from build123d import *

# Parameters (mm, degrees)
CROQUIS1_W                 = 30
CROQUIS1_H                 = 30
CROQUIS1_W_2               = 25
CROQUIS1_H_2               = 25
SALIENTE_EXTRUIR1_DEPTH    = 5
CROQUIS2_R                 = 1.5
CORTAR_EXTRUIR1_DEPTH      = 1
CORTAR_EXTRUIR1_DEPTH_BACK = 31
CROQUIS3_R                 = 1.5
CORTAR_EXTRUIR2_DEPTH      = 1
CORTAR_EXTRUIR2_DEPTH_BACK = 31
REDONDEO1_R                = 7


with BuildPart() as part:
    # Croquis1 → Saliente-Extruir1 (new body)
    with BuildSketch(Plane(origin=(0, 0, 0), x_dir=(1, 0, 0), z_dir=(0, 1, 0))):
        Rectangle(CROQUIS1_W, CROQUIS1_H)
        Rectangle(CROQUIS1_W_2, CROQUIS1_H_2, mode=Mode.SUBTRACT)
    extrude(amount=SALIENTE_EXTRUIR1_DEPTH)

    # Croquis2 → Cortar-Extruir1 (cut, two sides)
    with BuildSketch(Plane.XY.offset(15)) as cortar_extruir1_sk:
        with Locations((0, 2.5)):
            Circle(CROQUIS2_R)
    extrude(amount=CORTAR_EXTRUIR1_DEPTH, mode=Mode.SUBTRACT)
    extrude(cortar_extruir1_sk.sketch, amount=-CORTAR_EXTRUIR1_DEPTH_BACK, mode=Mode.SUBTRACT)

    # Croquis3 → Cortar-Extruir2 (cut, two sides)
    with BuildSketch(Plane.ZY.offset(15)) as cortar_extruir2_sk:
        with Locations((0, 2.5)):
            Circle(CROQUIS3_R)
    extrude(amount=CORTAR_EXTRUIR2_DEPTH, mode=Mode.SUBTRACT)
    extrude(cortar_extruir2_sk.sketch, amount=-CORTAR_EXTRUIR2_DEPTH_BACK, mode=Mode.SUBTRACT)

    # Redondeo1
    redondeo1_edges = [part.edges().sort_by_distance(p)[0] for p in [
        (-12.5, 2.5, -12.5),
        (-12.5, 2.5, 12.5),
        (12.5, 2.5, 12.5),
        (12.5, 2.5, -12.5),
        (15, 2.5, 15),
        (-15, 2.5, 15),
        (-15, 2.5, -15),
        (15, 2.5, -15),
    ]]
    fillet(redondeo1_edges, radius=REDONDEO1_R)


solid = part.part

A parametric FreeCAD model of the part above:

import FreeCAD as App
import Part
import Sketcher

V = App.Vector
Q = App.Units.Quantity


def edges_at(feature, points):
    """Names of the edges that pass closest to the given points."""
    edges = feature.Shape.Edges
    near = lambda p: min(range(len(edges)), key=lambda i: edges[i].distToShape(Part.Vertex(*p))[0])
    return sorted({f"Edge{near(p) + 1}" for p in points})

doc = App.newDocument("Part")
body = doc.addObject("PartDesign::Body", "Body")

# Sketch on XZ plane
sketch1 = doc.addObject("Sketcher::SketchObject", "Sketch")
body.addObject(sketch1)
sketch1.AttachmentSupport = (doc.XZ_Plane, [""])
sketch1.MapMode = "FlatFace"
sketch1.addGeometry([
    Part.LineSegment(V(-15, -15, 0), V(-15, 15, 0)),  # 0
    Part.LineSegment(V(-15, 15, 0), V(15, 15, 0)),  # 1
    Part.LineSegment(V(15, 15, 0), V(15, -15, 0)),  # 2
    Part.LineSegment(V(15, -15, 0), V(-15, -15, 0)),  # 3
    Part.LineSegment(V(12, 12, 0), V(-12, 12, 0)),  # 4
    Part.LineSegment(V(-12, 12, 0), V(-12, -12, 0)),  # 5
    Part.LineSegment(V(-12, -12, 0), V(12, -12, 0)),  # 6
    Part.LineSegment(V(12, -12, 0), V(12, 12, 0)),  # 7
], False)
sketch1.addConstraint([
    Sketcher.Constraint("Coincident", 0, 2, 1, 1),
    Sketcher.Constraint("Coincident", 1, 2, 2, 1),
    Sketcher.Constraint("Coincident", 2, 2, 3, 1),
    Sketcher.Constraint("Coincident", 3, 2, 0, 1),
    Sketcher.Constraint("Coincident", 4, 2, 5, 1),
    Sketcher.Constraint("Coincident", 5, 2, 6, 1),
    Sketcher.Constraint("Coincident", 6, 2, 7, 1),
    Sketcher.Constraint("Coincident", 7, 2, 4, 1),
    Sketcher.Constraint("Vertical", 0),
    Sketcher.Constraint("Horizontal", 1),
    Sketcher.Constraint("Vertical", 2),
    Sketcher.Constraint("Horizontal", 3),
    Sketcher.Constraint("Horizontal", 4),
    Sketcher.Constraint("Vertical", 5),
    Sketcher.Constraint("Horizontal", 6),
    Sketcher.Constraint("Vertical", 7),
    Sketcher.Constraint("Symmetric", 0, 2, 2, 2, -1, 1),
    Sketcher.Constraint("Symmetric", 4, 2, 6, 2, -1, 1),
    Sketcher.Constraint("Equal", 3, 0),
    Sketcher.Constraint("Equal", 6, 5),
    Sketcher.Constraint("DistanceX", 1, 1, 1, 2, Q("30 mm")),
    Sketcher.Constraint("DistanceX", 4, 2, 4, 1, Q("25 mm")),
])
pad1 = doc.addObject("PartDesign::Pad", "Pad")
body.addObject(pad1)
pad1.Profile = sketch1
pad1.Length = 5
pad1.Reversed = True

# Sketch on XY plane
sketch2 = doc.addObject("Sketcher::SketchObject", "Sketch001")
body.addObject(sketch2)
sketch2.AttachmentSupport = (doc.XY_Plane, [""])
sketch2.MapMode = "FlatFace"
sketch2.AttachmentOffset = App.Placement(V(0, 0, 15), App.Rotation())
sketch2.addGeometry(Part.Circle(V(0, 2.5, 0), V(0, 0, 1), 1.5), False)
sketch2.addConstraint([
    Sketcher.Constraint("PointOnObject", 0, 3, -2),
    Sketcher.Constraint("Diameter", 0, Q("3 mm")),
    Sketcher.Constraint("DistanceY", -1, 1, 0, 3, Q("2.5 mm")),
])
pocket1 = doc.addObject("PartDesign::Pocket", "Pocket")
body.addObject(pocket1)
pocket1.Profile = sketch2
pocket1.Type = "ThroughAll"
pocket1.Midplane = True

# Sketch on YZ plane
sketch3 = doc.addObject("Sketcher::SketchObject", "Sketch002")
body.addObject(sketch3)
sketch3.AttachmentSupport = (doc.YZ_Plane, [""])
sketch3.MapMode = "FlatFace"
sketch3.AttachmentOffset = App.Placement(V(0, 0, -15), App.Rotation())
sketch3.addGeometry(Part.Circle(V(2.5, 0, 0), V(0, 0, 1), 1.5), False)
sketch3.addConstraint([
    Sketcher.Constraint("PointOnObject", 0, 3, -1),
    Sketcher.Constraint("Diameter", 0, Q("3 mm")),
    Sketcher.Constraint("DistanceX", -1, 1, 0, 3, Q("2.5 mm")),
])
pocket2 = doc.addObject("PartDesign::Pocket", "Pocket001")
body.addObject(pocket2)
pocket2.Profile = sketch3
pocket2.Type = "ThroughAll"
pocket2.Midplane = True
doc.recompute()

fillet = doc.addObject("PartDesign::Fillet", "Fillet")
body.addObject(fillet)
fillet.Base = (pocket2, edges_at(pocket2, [
    (-12.5, 2.5, -12.5),
    (-12.5, 2.5, 12.5),
    (12.5, 2.5, 12.5),
    (12.5, 2.5, -12.5),
    (15, 2.5, 15),
    (-15, 2.5, 15),
    (-15, 2.5, -15),
    (15, 2.5, -15),
]))
fillet.Radius = 7

doc.recompute()
